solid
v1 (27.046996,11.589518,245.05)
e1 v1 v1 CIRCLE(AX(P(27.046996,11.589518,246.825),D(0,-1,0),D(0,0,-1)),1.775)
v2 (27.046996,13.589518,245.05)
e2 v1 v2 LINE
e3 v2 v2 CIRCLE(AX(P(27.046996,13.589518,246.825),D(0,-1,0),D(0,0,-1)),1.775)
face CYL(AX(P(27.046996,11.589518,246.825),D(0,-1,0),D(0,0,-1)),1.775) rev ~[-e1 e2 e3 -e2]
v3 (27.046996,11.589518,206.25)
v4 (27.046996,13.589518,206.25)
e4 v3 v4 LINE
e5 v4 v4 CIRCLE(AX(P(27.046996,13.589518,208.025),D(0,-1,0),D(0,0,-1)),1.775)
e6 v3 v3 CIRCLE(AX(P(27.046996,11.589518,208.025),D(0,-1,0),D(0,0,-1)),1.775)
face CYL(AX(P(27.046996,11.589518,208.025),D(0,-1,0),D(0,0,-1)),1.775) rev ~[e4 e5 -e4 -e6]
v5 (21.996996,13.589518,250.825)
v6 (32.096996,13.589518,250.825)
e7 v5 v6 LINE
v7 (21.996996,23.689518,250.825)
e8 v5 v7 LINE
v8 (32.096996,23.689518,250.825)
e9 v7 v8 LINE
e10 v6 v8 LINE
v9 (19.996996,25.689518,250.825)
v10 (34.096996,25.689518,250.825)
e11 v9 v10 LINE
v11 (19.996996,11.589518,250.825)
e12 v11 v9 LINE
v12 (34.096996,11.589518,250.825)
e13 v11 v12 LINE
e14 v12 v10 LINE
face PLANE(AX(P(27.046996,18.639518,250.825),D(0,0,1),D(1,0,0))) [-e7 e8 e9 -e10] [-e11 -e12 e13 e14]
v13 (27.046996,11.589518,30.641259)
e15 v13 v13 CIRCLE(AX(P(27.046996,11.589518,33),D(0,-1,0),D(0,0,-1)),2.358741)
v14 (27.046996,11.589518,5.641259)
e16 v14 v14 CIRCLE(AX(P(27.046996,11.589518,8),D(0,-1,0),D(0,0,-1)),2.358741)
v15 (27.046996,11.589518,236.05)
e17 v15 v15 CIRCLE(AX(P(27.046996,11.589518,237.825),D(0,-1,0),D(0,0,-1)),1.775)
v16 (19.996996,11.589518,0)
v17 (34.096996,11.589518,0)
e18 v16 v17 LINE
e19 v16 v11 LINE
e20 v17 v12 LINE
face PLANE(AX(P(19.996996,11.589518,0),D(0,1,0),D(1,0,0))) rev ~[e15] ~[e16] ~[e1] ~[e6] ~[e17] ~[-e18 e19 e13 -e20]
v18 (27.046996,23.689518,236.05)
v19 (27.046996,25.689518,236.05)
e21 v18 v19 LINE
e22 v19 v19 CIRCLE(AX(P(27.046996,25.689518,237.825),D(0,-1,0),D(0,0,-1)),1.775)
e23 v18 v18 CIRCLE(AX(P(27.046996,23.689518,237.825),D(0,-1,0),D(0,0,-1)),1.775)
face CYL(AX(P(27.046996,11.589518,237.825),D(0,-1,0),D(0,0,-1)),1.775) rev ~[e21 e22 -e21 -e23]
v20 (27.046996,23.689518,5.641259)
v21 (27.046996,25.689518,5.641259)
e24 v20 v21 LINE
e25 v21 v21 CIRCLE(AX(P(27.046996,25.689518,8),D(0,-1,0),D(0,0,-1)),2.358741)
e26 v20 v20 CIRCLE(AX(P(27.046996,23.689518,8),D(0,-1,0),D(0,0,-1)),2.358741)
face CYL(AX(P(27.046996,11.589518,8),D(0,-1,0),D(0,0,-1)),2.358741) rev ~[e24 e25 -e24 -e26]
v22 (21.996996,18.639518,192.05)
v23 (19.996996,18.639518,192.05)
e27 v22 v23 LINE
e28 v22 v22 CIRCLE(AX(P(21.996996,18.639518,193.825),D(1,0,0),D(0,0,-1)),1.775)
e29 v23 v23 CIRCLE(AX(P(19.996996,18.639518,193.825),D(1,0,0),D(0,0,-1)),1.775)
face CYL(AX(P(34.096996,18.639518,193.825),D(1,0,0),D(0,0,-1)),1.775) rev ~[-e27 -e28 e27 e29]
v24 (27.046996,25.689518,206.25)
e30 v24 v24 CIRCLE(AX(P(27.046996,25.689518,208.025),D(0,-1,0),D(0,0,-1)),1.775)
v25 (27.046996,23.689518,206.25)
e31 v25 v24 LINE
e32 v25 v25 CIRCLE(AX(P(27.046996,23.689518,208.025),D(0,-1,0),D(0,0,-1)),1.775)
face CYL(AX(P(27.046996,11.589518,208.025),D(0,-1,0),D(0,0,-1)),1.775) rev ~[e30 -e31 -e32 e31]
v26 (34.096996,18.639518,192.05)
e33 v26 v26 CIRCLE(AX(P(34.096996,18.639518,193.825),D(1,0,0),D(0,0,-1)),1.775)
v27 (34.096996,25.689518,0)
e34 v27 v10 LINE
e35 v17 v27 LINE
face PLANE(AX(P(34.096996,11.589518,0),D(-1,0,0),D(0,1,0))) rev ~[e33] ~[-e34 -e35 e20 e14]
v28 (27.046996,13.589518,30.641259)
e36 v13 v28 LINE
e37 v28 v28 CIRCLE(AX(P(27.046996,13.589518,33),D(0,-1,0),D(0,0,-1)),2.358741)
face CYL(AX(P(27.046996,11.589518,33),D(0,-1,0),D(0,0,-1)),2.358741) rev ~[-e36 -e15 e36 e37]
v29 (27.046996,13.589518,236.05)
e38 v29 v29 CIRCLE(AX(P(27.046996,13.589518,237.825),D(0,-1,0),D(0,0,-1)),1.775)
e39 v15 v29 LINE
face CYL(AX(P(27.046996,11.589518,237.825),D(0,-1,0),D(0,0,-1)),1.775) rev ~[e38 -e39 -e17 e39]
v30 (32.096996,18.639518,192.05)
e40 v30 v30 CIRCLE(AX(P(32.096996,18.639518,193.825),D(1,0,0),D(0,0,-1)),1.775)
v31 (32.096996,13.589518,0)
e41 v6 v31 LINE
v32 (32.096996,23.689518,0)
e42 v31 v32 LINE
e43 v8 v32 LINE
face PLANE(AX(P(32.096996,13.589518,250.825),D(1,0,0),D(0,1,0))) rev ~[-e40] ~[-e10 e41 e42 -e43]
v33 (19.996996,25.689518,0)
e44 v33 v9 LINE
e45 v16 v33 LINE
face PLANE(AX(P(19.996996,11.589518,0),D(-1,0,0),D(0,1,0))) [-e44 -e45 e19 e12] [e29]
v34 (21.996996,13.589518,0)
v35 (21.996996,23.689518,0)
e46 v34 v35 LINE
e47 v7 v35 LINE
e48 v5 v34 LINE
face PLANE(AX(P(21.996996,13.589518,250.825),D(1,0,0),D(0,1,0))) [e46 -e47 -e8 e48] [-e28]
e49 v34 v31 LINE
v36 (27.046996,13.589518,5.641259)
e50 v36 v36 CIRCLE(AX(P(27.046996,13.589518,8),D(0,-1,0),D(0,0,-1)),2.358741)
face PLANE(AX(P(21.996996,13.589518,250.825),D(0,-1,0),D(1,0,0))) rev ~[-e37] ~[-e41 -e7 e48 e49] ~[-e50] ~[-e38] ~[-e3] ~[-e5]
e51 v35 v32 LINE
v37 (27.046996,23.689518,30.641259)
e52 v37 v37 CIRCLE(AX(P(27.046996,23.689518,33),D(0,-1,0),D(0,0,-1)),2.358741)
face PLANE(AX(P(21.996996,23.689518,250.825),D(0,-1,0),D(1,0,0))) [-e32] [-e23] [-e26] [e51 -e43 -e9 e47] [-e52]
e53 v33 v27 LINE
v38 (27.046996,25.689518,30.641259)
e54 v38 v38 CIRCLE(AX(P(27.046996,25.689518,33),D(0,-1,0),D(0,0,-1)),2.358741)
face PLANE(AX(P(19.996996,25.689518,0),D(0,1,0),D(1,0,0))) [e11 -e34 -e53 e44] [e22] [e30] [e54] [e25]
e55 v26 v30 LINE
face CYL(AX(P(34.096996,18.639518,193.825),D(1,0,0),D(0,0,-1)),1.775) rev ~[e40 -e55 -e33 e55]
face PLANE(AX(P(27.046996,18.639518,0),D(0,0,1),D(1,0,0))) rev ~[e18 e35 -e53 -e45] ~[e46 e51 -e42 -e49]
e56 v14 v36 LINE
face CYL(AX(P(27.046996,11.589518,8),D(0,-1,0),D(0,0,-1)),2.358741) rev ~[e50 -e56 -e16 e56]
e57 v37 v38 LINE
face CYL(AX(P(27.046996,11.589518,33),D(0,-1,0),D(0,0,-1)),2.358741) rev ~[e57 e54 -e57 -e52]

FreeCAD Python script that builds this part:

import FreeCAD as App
import Part
import Sketcher


def add_polygon(sketch, points):
    """Adds a closed chain of lines whose ends are joined by coincident constraints."""
    first, n = sketch.GeometryCount, len(points)
    for a, b in zip(points, points[1:] + points[:1]):
        sketch.addGeometry(Part.LineSegment(App.Vector(*a, 0), App.Vector(*b, 0)), False)
    for i in range(n):
        sketch.addConstraint(Sketcher.Constraint("Coincident", first + i, 2, first + (i + 1) % n, 1))

doc = App.newDocument("Part")
body = doc.addObject("PartDesign::Body", "Body")

sketch1 = doc.addObject("Sketcher::SketchObject", "Sketch")
body.addObject(sketch1)
sketch1.AttachmentSupport = (doc.XY_Plane, [""])
sketch1.MapMode = "FlatFace"
add_polygon(sketch1, [(20, 26), (20, 12), (34, 12), (34, 26)])
sketch1.addConstraint([
    Sketcher.Constraint("Vertical", 0),
    Sketcher.Constraint("Horizontal", 1),
    Sketcher.Constraint("Vertical", 2),
    Sketcher.Constraint("Horizontal", 3),
    Sketcher.Constraint("Equal", 3, 0),
    Sketcher.Constraint("DistanceX", 1, 1, 1, 2, 14.1),
    Sketcher.Constraint("DistanceX", -1, 1, 0, 2, 19.996996),
    Sketcher.Constraint("DistanceY", -1, 1, 0, 2, 11.589518),
])
pad1 = doc.addObject("PartDesign::Pad", "Pad")
body.addObject(pad1)
pad1.Profile = sketch1
pad1.Length = 250.825

sketch2 = doc.addObject("Sketcher::SketchObject", "Sketch001")
body.addObject(sketch2)
sketch2.AttachmentSupport = (doc.XY_Plane, [""])
sketch2.MapMode = "FlatFace"
sketch2.AttachmentOffset = App.Placement(App.Vector(0, 0, 250.825), App.Rotation())
add_polygon(sketch2, [(22, 24), (22, 14), (32, 14), (32, 24)])
sketch2.addConstraint([
    Sketcher.Constraint("Vertical", 0),
    Sketcher.Constraint("Horizontal", 1),
    Sketcher.Constraint("Vertical", 2),
    Sketcher.Constraint("Horizontal", 3),
    Sketcher.Constraint("Equal", 3, 0),
    Sketcher.Constraint("DistanceX", 1, 1, 1, 2, 10.1),
    Sketcher.Constraint("DistanceX", -1, 1, 0, 2, 21.996996),
    Sketcher.Constraint("DistanceY", -1, 1, 0, 2, 13.589518),
])
pocket1 = doc.addObject("PartDesign::Pocket", "Pocket")
body.addObject(pocket1)
pocket1.Profile = sketch2
pocket1.Type = "ThroughAll"

sketch3 = doc.addObject("Sketcher::SketchObject", "Sketch002")
body.addObject(sketch3)
sketch3.AttachmentSupport = (doc.XZ_Plane, [""])
sketch3.MapMode = "FlatFace"
sketch3.AttachmentOffset = App.Placement(App.Vector(0, 0, -11.589518), App.Rotation())
sketch3.addGeometry([
    Part.Circle(App.Vector(27, 237.8, 0), App.Vector(0, 0, 1), 1.8),
    Part.Circle(App.Vector(27, 208, 0), App.Vector(0, 0, 1), 1.8),
    Part.Circle(App.Vector(27, 8, 0), App.Vector(0, 0, 1), 2.4),
    Part.Circle(App.Vector(27, 33, 0), App.Vector(0, 0, 1), 2.4),
], False)
sketch3.addConstraint([
    Sketcher.Constraint("Equal", 0, 1),
    Sketcher.Constraint("Equal", 2, 3),
    Sketcher.Constraint("Vertical", 0, 3, 1, 3),
    Sketcher.Constraint("Vertical", 1, 3, 2, 3),
    Sketcher.Constraint("Vertical", 2, 3, 3, 3),
    Sketcher.Constraint("Diameter", 0, 3.55),
    Sketcher.Constraint("DistanceY", -1, 1, 2, 3, 8.0),
    Sketcher.Constraint("DistanceY", -1, 1, 3, 3, 33.0),
    Sketcher.Constraint("DistanceY", 1, 3, 0, 3, 29.8),
    Sketcher.Constraint("Diameter", 2, 4.717481),
    Sketcher.Constraint("DistanceY", -1, 1, 0, 3, 237.825),
    Sketcher.Constraint("DistanceX", -1, 1, 0, 3, 27.046996),
])
pocket2 = doc.addObject("PartDesign::Pocket", "Pocket001")
body.addObject(pocket2)
pocket2.Profile = sketch3
pocket2.Type = "ThroughAll"

sketch4 = doc.addObject("Sketcher::SketchObject", "Sketch003")
body.addObject(sketch4)
sketch4.AttachmentSupport = (doc.XZ_Plane, [""])
sketch4.MapMode = "FlatFace"
sketch4.AttachmentOffset = App.Placement(App.Vector(0, 0, -11.589518), App.Rotation())
sketch4.addGeometry(Part.Circle(App.Vector(27, 246.8, 0), App.Vector(0, 0, 1), 1.8), False)
sketch4.addConstraint([
    Sketcher.Constraint("Diameter", 0, 3.55),
    Sketcher.Constraint("DistanceY", -1, 1, 0, 3, 246.825),
    Sketcher.Constraint("DistanceX", -1, 1, 0, 3, 27.046996),
])
pocket3 = doc.addObject("PartDesign::Pocket", "Pocket002")
body.addObject(pocket3)
pocket3.Profile = sketch4
pocket3.Length = 2

sketch5 = doc.addObject("Sketcher::SketchObject", "Sketch004")
body.addObject(sketch5)
sketch5.AttachmentSupport = (doc.YZ_Plane, [""])
sketch5.MapMode = "FlatFace"
sketch5.AttachmentOffset = App.Placement(App.Vector(0, 0, 34.096996), App.Rotation())
sketch5.addGeometry(Part.Circle(App.Vector(18.6, 193.8, 0), App.Vector(0, 0, 1), 1.8), False)
sketch5.addConstraint([
    Sketcher.Constraint("Diameter", 0, 3.55),
    Sketcher.Constraint("DistanceY", -1, 1, 0, 3, 193.825),
    Sketcher.Constraint("DistanceX", -1, 1, 0, 3, 18.639518),
])
pocket4 = doc.addObject("PartDesign::Pocket", "Pocket003")
body.addObject(pocket4)
pocket4.Profile = sketch5
pocket4.Type = "ThroughAll"

doc.recompute()
